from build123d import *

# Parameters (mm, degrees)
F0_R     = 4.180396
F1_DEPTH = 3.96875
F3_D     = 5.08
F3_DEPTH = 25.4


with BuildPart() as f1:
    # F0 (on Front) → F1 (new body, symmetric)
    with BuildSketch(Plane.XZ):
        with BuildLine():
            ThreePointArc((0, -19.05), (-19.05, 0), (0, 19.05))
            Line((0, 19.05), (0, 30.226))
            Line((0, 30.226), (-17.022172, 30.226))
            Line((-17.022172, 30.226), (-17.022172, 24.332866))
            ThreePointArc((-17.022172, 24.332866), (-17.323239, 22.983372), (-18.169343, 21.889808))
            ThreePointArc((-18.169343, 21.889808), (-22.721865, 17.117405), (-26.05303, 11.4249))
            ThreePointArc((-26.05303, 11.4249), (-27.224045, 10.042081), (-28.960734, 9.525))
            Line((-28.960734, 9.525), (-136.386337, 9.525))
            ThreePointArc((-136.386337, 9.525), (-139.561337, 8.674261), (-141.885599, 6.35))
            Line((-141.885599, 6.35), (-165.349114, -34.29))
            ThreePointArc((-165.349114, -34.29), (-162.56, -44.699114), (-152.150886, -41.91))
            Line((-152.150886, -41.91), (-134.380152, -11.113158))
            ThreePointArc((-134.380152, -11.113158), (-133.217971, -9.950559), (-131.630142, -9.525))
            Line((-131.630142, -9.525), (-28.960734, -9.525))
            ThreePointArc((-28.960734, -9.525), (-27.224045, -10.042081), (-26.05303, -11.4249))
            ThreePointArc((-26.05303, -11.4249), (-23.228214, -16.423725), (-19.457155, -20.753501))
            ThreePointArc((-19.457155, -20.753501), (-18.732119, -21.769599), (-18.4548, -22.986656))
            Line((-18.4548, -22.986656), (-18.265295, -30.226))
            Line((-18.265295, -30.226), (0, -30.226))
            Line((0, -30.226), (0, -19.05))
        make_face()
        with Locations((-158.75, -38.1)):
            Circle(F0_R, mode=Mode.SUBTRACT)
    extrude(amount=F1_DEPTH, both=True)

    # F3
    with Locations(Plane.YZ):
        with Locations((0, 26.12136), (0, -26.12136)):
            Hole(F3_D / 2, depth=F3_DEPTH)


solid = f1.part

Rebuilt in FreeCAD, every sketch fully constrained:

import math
import FreeCAD as App
import Part
import Sketcher

V = App.Vector
Q = App.Units.Quantity

doc = App.newDocument("Part")
body = doc.addObject("PartDesign::Body", "Body")

# Sketch on XZ plane
sketch1 = body.newObject("Sketcher::SketchObject", "Sketch")
sketch1.AttachmentSupport = (doc.getObject("XZ_Plane"), [""])
sketch1.MapMode = "FlatFace"
sketch1.addGeometry([
    Part.ArcOfCircle(Part.Circle(V(0, 0, 0), V(0, 0, 1), 19.05), math.radians(90), math.radians(270)),  # 0
    Part.LineSegment(V(0, 19.05, 0), V(0, 30.226, 0)),  # 1
    Part.LineSegment(V(0, 30.226, 0), V(-17.022172, 30.226, 0)),  # 2
    Part.LineSegment(V(-17.022172, 30.226, 0), V(-17.022172, 24.332866, 0)),  # 3
    Part.ArcOfCircle(Part.Circle(V(-20.19717, 24.332866, 0), V(0, 0, 1), 3.174998), math.radians(-50.306085), math.radians(0.000006)),  # 4
    Part.ArcOfCircle(Part.Circle(V(0.000007, -0.000005, 0), V(0, 0, 1), 28.448008), math.radians(129.693921), math.radians(156.321354)),  # 5
    Part.ArcOfCircle(Part.Circle(V(-28.960735, 12.700001, 0), V(0, 0, 1), 3.175001), math.radians(-89.999979), math.radians(-23.678648)),  # 6
    Part.LineSegment(V(-28.960734, 9.525, 0), V(-136.386337, 9.525, 0)),  # 7
    Part.ArcOfCircle(Part.Circle(V(-136.386335, 3.174996, 0), V(0, 0, 1), 6.350004), math.radians(90.000015), math.radians(149.999979)),  # 8
    Part.LineSegment(V(-141.885599, 6.35, 0), V(-165.349114, -34.29, 0)),  # 9
    Part.ArcOfCircle(Part.Circle(V(-158.75, -38.1, 0), V(0, 0, 1), 7.62), math.radians(150.000002), math.radians(330.000002)),  # 10
    Part.LineSegment(V(-152.150886, -41.91, 0), V(-134.380152, -11.113158, 0)),  # 11
    Part.ArcOfCircle(Part.Circle(V(-131.630143, -12.699997, 0), V(0, 0, 1), 3.174997), math.radians(89.999974), math.radians(150.013744)),  # 12
    Part.LineSegment(V(-131.630142, -9.525, 0), V(-28.960734, -9.525, 0)),  # 13
    Part.ArcOfCircle(Part.Circle(V(-28.960735, -12.700001, 0), V(0, 0, 1), 3.175001), math.radians(23.678648), math.radians(89.999979)),  # 14
    Part.ArcOfCircle(Part.Circle(V(0.00002, 0.000016, 0), V(0, 0, 1), 28.448025), math.radians(-156.321344), math.radians(-133.153497)),  # 15
    Part.ArcOfCircle(Part.Circle(V(-21.62872, -23.069743, 0), V(0, 0, 1), 3.175007), math.radians(1.499546), math.radians(46.846453)),  # 16
    Part.LineSegment(V(-18.4548, -22.986656, 0), V(-18.265295, -30.226, 0)),  # 17
    Part.LineSegment(V(-18.265295, -30.226, 0), V(0, -30.226, 0)),  # 18
    Part.LineSegment(V(0, -30.226, 0), V(0, -19.05, 0)),  # 19
    Part.Circle(V(-158.75, -38.1, 0), V(0, 0, 1), 4.180396),  # 20
], False)
sketch1.addConstraint([
    Sketcher.Constraint("Coincident", 0, 1, 1, 1),
    Sketcher.Constraint("Coincident", 1, 2, 2, 1),
    Sketcher.Constraint("Coincident", 2, 2, 3, 1),
    Sketcher.Constraint("Coincident", 3, 2, 4, 2),
    Sketcher.Constraint("Coincident", 4, 1, 5, 1),
    Sketcher.Constraint("Coincident", 5, 2, 6, 2),
    Sketcher.Constraint("Coincident", 6, 1, 7, 1),
    Sketcher.Constraint("Coincident", 7, 2, 8, 1),
    Sketcher.Constraint("Coincident", 8, 2, 9, 1),
    Sketcher.Constraint("Coincident", 9, 2, 10, 1),
    Sketcher.Constraint("Coincident", 10, 2, 11, 1),
    Sketcher.Constraint("Coincident", 11, 2, 12, 2),
    Sketcher.Constraint("Coincident", 12, 1, 13, 1),
    Sketcher.Constraint("Coincident", 13, 2, 14, 2),
    Sketcher.Constraint("Coincident", 14, 1, 15, 1),
    Sketcher.Constraint("Coincident", 15, 2, 16, 2),
    Sketcher.Constraint("Coincident", 16, 1, 17, 1),
    Sketcher.Constraint("Coincident", 17, 2, 18, 1),
    Sketcher.Constraint("Coincident", 18, 2, 19, 1),
    Sketcher.Constraint("Coincident", 19, 2, 0, 2),
    Sketcher.Constraint("Vertical", 1),
    Sketcher.Constraint("Horizontal", 2),
    Sketcher.Constraint("Vertical", 3),
    Sketcher.Constraint("Horizontal", 7),
    Sketcher.Constraint("Horizontal", 13),
    Sketcher.Constraint("Horizontal", 18),
    Sketcher.Constraint("Vertical", 19),
    Sketcher.Constraint("Coincident", 0, 3, -1, 1),
    Sketcher.Constraint("Coincident", 5, 3, -1, 1),
    Sketcher.Constraint("Coincident", 20, 3, 10, 3),
    Sketcher.Constraint("PointOnObject", 0, 1, -2),
    Sketcher.Constraint("PointOnObject", 18, 2, -2),
    Sketcher.Constraint("Radius", 10, Q("0.3 in")),
    Sketcher.Constraint("Radius", 0, Q("0.75 in")),
    Sketcher.Constraint("Radius", 8, Q("0.2500002 in")),
    Sketcher.Constraint("Radius", 4, Q("0.1249999 in")),
    Sketcher.Constraint("Radius", 6, Q("0.125 in")),
    Sketcher.Constraint("Radius", 12, Q("0.1249999 in")),
    Sketcher.Constraint("Radius", 14, Q("0.125 in")),
    Sketcher.Constraint("DistanceY", 10, 3, 6, 3, Q("2 in")),
    Sketcher.Constraint("DistanceY", 10, 3, 12, 3, Q("1.0000001 in")),
    Sketcher.Constraint("DistanceY", 1, 1, 1, 2, Q("0.44 in")),
    Sketcher.Constraint("DistanceY", 19, 1, 19, 2, Q("0.44 in")),
    Sketcher.Constraint("DistanceY", -1, 1, 6, 3, Q("0.5 in")),
    Sketcher.Constraint("DistanceY", 9, 2, 8, 2, Q("1.6 in")),
    Sketcher.Constraint("DistanceY", 10, 2, 9, 2, Q("0.3 in")),
    Sketcher.Constraint("DistanceX", 10, 3, -1, 1, Q("6.25 in")),
    Sketcher.Constraint("DistanceY", -1, 1, 8, 2, Q("0.25 in")),
    Sketcher.Constraint("Radius", 5, 28.448008),
    Sketcher.Constraint("Diameter", 20, 8.360792),
    Sketcher.Constraint("Radius", 15, 28.448025),
    Sketcher.Constraint("Radius", 16, 3.175007),
    Sketcher.Constraint("DistanceX", 13, 1, 13, 2, 102.669408),
    Sketcher.Constraint("DistanceY", -1, 1, 5, 2, 11.4249),
    Sketcher.Constraint("DistanceX", 8, 2, -1, 1, 141.885599),
    Sketcher.Constraint("DistanceY", 14, 1, -1, 1, 11.4249),
    Sketcher.Constraint("DistanceY", 15, 2, -1, 1, 20.753501),
    Sketcher.Constraint("DistanceX", 16, 1, -1, 1, 18.4548),
    Sketcher.Constraint("DistanceX", 2, 2, 2, 1, 17.022172),
    Sketcher.Constraint("DistanceX", 7, 2, 7, 1, 107.425603),
    Sketcher.Constraint("DistanceX", 18, 1, 18, 2, 18.265295),
    Sketcher.Constraint("DistanceY", 3, 2, 3, 1, 5.893134),
    Sketcher.Constraint("DistanceX", 16, 3, -1, 1, 21.62872),
    Sketcher.Constraint("DistanceX", 12, 1, -1, 1, 131.630142),
    Sketcher.Constraint("DistanceX", 14, 1, -1, 1, 26.05303),
    Sketcher.Constraint("DistanceX", 8, 3, 12, 3, 4.756192),
    Sketcher.Constraint("DistanceX", 4, 3, 15, 3, 20.197191),
    Sketcher.Constraint("DistanceX", 4, 1, 3, 2, 1.147171),
    Sketcher.Constraint("DistanceX", 6, 1, 4, 1, 10.791391),
    Sketcher.Constraint("DistanceX", 11, 2, 12, 3, 2.750009),
])
pad1 = body.newObject("PartDesign::Pad", "Pad")
pad1.Profile = sketch1
pad1.Length = Q("0.3125 in")
pad1.Midplane = True

# Sketch on YZ plane
sketch2 = body.newObject("Sketcher::SketchObject", "Sketch001")
sketch2.AttachmentSupport = (doc.getObject("YZ_Plane"), [""])
sketch2.MapMode = "FlatFace"
sketch2.addGeometry([
    Part.Circle(V(0, 26.1, 0), V(0, 0, 1), 2.5),
    Part.Circle(V(0, -26.1, 0), V(0, 0, 1), 2.5),
], False)
sketch2.addConstraint([
    Sketcher.Constraint("Equal", 0, 1),
    Sketcher.Constraint("Symmetric", 0, 3, 1, 3, -1, 1),
    Sketcher.Constraint("PointOnObject", 0, 3, -2),
    Sketcher.Constraint("Diameter", 0, Q("0.2 in")),
    Sketcher.Constraint("DistanceY", -1, 1, 0, 3, Q("1.0284 in")),
])
doc.recompute()
hole = body.newObject("PartDesign::Hole", "Hole")
hole.Profile = sketch2
hole.ThreadType = "None"
hole.Diameter = Q("0.2 in")
hole.DepthType = "Dimension"
hole.Depth = Q("1 in")
hole.DrillPoint = "Flat"

doc.recompute()
